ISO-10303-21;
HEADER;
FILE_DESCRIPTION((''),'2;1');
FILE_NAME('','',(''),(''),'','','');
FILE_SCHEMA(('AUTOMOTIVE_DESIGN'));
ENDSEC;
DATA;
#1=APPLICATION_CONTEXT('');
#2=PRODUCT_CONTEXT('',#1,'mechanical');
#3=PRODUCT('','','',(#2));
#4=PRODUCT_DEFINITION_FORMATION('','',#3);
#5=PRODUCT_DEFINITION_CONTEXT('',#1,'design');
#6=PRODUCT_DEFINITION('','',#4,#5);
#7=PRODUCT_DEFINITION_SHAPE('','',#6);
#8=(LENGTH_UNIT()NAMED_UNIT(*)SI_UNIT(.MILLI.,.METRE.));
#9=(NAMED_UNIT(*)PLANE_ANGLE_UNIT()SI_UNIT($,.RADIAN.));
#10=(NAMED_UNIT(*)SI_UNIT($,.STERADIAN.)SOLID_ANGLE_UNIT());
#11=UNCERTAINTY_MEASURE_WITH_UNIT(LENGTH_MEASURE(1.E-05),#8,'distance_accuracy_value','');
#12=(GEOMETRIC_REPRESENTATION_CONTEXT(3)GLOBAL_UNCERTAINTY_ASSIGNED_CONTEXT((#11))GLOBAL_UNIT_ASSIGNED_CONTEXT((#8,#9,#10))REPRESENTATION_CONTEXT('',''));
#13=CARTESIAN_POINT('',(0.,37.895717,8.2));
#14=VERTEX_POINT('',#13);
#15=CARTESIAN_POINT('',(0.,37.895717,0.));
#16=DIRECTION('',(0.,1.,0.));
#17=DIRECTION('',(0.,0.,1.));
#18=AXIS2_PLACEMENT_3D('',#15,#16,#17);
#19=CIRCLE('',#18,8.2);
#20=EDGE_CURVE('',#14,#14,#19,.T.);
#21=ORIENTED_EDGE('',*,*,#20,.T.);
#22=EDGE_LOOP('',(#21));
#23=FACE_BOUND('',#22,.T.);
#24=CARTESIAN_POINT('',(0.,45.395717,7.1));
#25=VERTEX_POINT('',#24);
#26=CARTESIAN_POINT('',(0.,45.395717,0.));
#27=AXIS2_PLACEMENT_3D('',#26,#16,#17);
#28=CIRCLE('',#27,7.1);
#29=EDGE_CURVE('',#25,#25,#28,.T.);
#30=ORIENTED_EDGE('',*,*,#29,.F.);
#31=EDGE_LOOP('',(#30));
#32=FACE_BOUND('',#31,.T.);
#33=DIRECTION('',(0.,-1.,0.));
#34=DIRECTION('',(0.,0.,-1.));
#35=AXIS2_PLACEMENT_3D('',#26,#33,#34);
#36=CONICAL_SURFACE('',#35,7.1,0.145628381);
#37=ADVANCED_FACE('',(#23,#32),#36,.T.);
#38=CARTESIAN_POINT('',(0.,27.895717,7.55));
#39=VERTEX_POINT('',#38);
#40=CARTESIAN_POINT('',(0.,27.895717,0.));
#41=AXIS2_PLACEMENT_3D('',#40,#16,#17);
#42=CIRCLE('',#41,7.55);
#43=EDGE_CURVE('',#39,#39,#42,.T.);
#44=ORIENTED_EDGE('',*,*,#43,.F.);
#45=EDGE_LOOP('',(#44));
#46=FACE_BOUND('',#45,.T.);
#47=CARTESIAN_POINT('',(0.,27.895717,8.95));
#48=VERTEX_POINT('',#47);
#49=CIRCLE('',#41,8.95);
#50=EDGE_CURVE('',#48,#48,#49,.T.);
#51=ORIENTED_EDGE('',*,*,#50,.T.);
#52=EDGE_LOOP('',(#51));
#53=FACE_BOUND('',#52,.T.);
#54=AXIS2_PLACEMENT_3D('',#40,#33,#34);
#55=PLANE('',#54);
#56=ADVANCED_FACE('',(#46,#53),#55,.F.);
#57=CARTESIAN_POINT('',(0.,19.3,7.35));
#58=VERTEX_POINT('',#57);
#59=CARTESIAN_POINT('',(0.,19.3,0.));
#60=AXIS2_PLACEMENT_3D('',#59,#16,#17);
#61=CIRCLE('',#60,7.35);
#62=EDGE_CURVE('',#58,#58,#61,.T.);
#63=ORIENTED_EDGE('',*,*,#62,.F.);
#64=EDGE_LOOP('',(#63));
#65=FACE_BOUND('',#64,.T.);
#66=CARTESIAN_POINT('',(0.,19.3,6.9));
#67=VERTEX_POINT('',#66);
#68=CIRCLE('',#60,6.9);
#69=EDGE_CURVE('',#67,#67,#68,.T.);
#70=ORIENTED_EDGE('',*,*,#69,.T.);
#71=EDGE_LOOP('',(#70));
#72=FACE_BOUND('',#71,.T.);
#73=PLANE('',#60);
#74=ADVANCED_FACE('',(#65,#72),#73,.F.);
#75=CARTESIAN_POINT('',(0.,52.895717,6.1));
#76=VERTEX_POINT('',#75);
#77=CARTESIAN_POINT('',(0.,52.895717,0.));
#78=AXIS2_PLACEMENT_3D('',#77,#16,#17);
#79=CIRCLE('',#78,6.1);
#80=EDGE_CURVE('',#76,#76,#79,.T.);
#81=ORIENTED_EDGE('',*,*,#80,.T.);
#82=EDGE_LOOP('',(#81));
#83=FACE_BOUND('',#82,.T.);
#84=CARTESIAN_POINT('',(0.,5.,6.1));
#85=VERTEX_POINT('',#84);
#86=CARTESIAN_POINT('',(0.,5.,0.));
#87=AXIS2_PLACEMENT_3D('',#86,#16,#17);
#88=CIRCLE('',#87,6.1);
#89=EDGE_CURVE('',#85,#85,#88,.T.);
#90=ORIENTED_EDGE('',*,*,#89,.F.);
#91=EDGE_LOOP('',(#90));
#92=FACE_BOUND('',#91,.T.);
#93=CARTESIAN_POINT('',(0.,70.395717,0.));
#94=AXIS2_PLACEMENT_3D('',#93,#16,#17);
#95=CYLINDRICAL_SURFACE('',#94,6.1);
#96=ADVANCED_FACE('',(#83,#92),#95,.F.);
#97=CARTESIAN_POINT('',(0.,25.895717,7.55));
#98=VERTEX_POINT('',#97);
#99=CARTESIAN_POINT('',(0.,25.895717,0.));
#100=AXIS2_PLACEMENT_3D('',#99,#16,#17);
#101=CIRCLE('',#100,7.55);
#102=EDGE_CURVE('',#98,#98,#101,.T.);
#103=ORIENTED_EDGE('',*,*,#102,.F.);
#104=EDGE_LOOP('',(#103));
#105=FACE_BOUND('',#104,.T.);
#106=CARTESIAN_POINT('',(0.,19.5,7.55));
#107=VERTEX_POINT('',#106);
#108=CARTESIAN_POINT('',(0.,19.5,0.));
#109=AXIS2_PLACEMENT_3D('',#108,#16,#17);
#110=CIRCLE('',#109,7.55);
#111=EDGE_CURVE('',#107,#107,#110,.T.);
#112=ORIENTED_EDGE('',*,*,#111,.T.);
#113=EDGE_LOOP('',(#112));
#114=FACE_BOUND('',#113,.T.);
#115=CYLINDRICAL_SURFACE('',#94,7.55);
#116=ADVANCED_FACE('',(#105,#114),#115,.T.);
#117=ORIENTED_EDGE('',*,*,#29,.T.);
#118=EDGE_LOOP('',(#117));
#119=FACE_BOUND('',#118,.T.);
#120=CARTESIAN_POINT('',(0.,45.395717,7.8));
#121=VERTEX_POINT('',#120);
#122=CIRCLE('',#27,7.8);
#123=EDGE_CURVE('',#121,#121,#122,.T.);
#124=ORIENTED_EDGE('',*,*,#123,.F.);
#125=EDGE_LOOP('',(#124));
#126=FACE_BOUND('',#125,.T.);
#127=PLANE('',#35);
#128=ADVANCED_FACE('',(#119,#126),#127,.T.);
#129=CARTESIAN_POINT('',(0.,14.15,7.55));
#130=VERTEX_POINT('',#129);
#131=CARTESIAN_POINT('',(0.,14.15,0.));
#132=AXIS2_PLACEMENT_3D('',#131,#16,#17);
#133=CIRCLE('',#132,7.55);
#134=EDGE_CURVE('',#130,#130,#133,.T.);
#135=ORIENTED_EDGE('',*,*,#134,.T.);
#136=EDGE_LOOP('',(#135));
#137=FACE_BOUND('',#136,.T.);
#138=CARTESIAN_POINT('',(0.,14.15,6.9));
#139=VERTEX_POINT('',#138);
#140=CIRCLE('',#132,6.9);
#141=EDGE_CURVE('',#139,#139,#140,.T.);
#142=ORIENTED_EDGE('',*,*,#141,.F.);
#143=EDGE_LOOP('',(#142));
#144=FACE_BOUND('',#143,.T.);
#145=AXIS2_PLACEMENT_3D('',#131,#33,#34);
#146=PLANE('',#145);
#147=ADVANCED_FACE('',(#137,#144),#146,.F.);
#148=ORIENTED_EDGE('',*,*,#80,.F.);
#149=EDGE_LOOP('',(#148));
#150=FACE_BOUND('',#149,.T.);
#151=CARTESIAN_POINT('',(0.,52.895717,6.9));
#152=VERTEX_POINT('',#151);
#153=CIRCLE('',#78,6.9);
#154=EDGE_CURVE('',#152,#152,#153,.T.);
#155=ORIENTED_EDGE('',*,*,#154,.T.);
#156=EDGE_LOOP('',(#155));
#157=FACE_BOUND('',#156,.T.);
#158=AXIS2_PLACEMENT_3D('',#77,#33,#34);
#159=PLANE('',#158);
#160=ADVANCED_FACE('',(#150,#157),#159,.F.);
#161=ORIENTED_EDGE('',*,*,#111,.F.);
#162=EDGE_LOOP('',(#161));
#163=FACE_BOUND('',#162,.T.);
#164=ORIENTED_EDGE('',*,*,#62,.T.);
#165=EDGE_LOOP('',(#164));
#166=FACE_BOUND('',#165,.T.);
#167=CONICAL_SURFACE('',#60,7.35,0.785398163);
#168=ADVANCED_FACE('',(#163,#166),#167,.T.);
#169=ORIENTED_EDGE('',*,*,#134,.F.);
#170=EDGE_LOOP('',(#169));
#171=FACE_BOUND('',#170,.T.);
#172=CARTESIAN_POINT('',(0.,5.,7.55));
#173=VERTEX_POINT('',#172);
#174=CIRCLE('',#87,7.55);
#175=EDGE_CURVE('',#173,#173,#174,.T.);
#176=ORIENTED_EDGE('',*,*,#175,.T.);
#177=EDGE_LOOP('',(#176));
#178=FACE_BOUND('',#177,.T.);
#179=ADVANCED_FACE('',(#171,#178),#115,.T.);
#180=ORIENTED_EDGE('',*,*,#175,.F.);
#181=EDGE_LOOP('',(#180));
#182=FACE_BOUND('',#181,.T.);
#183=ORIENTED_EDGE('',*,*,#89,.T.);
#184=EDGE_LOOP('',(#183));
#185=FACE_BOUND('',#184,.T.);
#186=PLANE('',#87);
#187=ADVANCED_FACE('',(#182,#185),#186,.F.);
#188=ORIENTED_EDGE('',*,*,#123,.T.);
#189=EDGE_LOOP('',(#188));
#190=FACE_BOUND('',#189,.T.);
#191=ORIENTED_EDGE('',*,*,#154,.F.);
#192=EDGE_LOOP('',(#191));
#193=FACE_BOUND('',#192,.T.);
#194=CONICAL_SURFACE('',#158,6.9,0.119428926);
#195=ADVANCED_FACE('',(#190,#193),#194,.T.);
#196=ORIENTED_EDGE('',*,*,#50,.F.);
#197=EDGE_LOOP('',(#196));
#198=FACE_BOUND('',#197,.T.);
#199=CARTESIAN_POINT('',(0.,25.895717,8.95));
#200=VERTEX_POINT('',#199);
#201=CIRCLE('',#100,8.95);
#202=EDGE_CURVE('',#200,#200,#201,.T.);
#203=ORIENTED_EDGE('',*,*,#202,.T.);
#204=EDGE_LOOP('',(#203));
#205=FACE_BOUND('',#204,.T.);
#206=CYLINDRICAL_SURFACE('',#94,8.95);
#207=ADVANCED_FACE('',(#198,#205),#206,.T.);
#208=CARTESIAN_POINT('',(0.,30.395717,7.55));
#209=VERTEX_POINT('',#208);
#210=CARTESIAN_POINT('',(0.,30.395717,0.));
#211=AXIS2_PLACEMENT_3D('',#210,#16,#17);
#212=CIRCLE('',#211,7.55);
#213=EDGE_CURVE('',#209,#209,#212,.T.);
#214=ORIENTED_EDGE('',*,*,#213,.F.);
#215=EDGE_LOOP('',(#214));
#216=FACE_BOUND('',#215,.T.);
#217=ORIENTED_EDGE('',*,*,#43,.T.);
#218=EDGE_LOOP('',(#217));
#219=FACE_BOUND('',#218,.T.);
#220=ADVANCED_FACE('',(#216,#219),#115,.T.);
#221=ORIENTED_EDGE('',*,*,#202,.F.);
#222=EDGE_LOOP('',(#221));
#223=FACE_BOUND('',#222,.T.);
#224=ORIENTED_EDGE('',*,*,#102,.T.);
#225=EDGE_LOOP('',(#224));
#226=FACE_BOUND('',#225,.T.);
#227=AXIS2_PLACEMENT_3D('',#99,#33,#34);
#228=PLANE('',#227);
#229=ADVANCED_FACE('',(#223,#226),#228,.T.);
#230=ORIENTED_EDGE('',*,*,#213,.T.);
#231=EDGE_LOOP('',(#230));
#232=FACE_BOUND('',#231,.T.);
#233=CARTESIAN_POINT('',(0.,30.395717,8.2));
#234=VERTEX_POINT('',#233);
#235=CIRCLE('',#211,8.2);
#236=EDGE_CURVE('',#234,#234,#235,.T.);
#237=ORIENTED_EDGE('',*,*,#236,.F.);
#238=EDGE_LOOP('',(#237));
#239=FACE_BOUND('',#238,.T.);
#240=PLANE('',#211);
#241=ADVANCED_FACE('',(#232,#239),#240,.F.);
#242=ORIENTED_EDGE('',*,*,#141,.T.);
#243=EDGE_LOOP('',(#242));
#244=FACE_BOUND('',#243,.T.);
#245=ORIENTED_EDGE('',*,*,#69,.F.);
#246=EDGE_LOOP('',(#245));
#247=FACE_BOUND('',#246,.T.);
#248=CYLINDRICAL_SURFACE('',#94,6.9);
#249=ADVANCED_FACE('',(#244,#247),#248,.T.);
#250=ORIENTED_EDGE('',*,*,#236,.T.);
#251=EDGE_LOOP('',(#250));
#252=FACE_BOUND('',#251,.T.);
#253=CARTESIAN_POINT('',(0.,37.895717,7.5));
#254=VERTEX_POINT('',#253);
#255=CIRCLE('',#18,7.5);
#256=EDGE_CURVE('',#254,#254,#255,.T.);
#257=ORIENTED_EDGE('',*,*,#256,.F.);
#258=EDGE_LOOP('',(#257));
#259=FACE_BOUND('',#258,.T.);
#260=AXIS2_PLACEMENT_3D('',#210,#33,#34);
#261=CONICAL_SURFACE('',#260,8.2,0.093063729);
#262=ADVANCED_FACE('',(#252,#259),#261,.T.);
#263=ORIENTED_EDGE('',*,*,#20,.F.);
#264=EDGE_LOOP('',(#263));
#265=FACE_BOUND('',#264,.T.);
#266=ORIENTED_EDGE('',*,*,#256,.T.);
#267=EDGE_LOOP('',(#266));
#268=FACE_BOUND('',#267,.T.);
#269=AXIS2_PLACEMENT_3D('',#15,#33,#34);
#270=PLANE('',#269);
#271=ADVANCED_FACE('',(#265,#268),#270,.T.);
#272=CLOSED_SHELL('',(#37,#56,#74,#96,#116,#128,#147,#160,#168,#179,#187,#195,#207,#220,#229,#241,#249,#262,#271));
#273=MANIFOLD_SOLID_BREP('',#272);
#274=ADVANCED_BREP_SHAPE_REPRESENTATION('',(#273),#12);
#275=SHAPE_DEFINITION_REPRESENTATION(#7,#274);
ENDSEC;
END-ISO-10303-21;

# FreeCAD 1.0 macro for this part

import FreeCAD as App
import Part
import Sketcher
Q = App.Units.Quantity


def add_polygon(sketch, points):
    """Adds a closed chain of lines whose ends are joined by coincident constraints."""
    first, n = sketch.GeometryCount, len(points)
    for a, b in zip(points, points[1:] + points[:1]):
        sketch.addGeometry(Part.LineSegment(App.Vector(*a, 0), App.Vector(*b, 0)), False)
    for i in range(n):
        sketch.addConstraint(Sketcher.Constraint("Coincident", first + i, 2, first + (i + 1) % n, 1))

doc = App.newDocument("Part")
params = doc.addObject("Spreadsheet::Sheet", "Params")
for row, (alias, value) in enumerate([
    ("sketch1_height", "2 mm"),
    ("sketch1_width", "1.4 mm"),
    ("sketch1_width2", "0.7 mm"),
    ("sketch1_width3", "0.8 mm"),
    ("sketch1_height2", "2.5 mm"),
    ("revolution_angle", "360 deg"),
], start=1):
    params.set(f"A{row}", alias)
    params.set(f"B{row}", "=" + value)
    params.setAlias(f"B{row}", alias)

body = doc.addObject("PartDesign::Body", "Body")

sketch1 = doc.addObject("Sketcher::SketchObject", "Sketch")
body.addObject(sketch1)
sketch1.AttachmentSupport = (doc.XY_Plane, [""])
sketch1.MapMode = "FlatFace"
add_polygon(sketch1, [(7.55, 5), (7.55, 14.15), (6.9, 14.15), (6.9, 19.3), (7.35, 19.3), (7.55, 19.5), (7.55, 25.895717), (8.95, 25.895717), (8.95, 27.895717), (7.55, 27.895717), (7.55, 30.395717), (8.2, 30.395717), (7.5, 37.895717), (8.2, 37.895717), (7.1, 45.395717), (7.8, 45.395717), (6.9, 52.895717), (6.1, 52.895717), (6.1, 5)])
sketch1.addConstraint([
    Sketcher.Constraint("Vertical", 0),
    Sketcher.Constraint("Horizontal", 1),
    Sketcher.Constraint("Vertical", 2),
    Sketcher.Constraint("Horizontal", 3),
    Sketcher.Constraint("Vertical", 5),
    Sketcher.Constraint("Horizontal", 6),
    Sketcher.Constraint("Vertical", 7),
    Sketcher.Constraint("Horizontal", 8),
    Sketcher.Constraint("Vertical", 9),
    Sketcher.Constraint("Horizontal", 10),
    Sketcher.Constraint("Horizontal", 12),
    Sketcher.Constraint("Horizontal", 14),
    Sketcher.Constraint("Horizontal", 16),
    Sketcher.Constraint("Vertical", 17),
    Sketcher.Constraint("Horizontal", 18),
    Sketcher.Constraint("Vertical", 0, 2, 4, 2),
    Sketcher.Constraint("Vertical", 5, 2, 8, 2),
    Sketcher.Constraint("Vertical", 10, 2, 12, 2),
    Sketcher.Constraint("Vertical", 2, 2, 15, 2),
    Sketcher.Constraint("Equal", 1, 10),
    Sketcher.Constraint("Equal", 12, 14),
    Sketcher.Constraint("DistanceY", 7, 1, 7, 2, 2.0),
    Sketcher.Constraint("Angle", 4, Q("45 deg")),
    Sketcher.Constraint("DistanceX", 6, 1, 6, 2, 1.4),
    Sketcher.Constraint("DistanceX", 12, 1, 12, 2, 0.7),
    Sketcher.Constraint("DistanceX", 16, 2, 16, 1, 0.8),
    Sketcher.Constraint("DistanceY", 9, 1, 9, 2, 2.5),
    Sketcher.Constraint("DistanceY", -1, 1, 17, 2, 5.0),
    Sketcher.Constraint("DistanceY", 8, 2, 11, 2, 10.0),
    Sketcher.Constraint("DistanceY", 9, 2, 13, 2, 15.0),
    Sketcher.Constraint("DistanceY", 11, 2, 15, 2, 15.0),
    Sketcher.Constraint("DistanceX", 16, 2, 13, 2, 1.0),
    Sketcher.Constraint("DistanceX", 1, 2, 1, 1, 0.65),
    Sketcher.Constraint("DistanceX", 3, 1, 3, 2, 0.45),
    Sketcher.Constraint("DistanceY", 0, 1, 0, 2, 9.15),
    Sketcher.Constraint("DistanceY", 2, 1, 2, 2, 5.15),
    Sketcher.Constraint("DistanceX", -1, 1, 1, 2, 6.9),
    Sketcher.Constraint("DistanceY", 5, 1, 5, 2, 6.395717),
])
sketch1.setExpression("Constraints[40]", "Params.sketch1_height")
sketch1.setExpression("Constraints[42]", "Params.sketch1_width")
sketch1.setExpression("Constraints[43]", "Params.sketch1_width2")
sketch1.setExpression("Constraints[44]", "Params.sketch1_width3")
sketch1.setExpression("Constraints[45]", "Params.sketch1_height2")
revolution = doc.addObject("PartDesign::Revolution", "Revolution")
body.addObject(revolution)
revolution.Profile = sketch1
revolution.ReferenceAxis = (sketch1, ["V_Axis"])
revolution.setExpression("Angle", "Params.revolution_angle")

doc.recompute()
